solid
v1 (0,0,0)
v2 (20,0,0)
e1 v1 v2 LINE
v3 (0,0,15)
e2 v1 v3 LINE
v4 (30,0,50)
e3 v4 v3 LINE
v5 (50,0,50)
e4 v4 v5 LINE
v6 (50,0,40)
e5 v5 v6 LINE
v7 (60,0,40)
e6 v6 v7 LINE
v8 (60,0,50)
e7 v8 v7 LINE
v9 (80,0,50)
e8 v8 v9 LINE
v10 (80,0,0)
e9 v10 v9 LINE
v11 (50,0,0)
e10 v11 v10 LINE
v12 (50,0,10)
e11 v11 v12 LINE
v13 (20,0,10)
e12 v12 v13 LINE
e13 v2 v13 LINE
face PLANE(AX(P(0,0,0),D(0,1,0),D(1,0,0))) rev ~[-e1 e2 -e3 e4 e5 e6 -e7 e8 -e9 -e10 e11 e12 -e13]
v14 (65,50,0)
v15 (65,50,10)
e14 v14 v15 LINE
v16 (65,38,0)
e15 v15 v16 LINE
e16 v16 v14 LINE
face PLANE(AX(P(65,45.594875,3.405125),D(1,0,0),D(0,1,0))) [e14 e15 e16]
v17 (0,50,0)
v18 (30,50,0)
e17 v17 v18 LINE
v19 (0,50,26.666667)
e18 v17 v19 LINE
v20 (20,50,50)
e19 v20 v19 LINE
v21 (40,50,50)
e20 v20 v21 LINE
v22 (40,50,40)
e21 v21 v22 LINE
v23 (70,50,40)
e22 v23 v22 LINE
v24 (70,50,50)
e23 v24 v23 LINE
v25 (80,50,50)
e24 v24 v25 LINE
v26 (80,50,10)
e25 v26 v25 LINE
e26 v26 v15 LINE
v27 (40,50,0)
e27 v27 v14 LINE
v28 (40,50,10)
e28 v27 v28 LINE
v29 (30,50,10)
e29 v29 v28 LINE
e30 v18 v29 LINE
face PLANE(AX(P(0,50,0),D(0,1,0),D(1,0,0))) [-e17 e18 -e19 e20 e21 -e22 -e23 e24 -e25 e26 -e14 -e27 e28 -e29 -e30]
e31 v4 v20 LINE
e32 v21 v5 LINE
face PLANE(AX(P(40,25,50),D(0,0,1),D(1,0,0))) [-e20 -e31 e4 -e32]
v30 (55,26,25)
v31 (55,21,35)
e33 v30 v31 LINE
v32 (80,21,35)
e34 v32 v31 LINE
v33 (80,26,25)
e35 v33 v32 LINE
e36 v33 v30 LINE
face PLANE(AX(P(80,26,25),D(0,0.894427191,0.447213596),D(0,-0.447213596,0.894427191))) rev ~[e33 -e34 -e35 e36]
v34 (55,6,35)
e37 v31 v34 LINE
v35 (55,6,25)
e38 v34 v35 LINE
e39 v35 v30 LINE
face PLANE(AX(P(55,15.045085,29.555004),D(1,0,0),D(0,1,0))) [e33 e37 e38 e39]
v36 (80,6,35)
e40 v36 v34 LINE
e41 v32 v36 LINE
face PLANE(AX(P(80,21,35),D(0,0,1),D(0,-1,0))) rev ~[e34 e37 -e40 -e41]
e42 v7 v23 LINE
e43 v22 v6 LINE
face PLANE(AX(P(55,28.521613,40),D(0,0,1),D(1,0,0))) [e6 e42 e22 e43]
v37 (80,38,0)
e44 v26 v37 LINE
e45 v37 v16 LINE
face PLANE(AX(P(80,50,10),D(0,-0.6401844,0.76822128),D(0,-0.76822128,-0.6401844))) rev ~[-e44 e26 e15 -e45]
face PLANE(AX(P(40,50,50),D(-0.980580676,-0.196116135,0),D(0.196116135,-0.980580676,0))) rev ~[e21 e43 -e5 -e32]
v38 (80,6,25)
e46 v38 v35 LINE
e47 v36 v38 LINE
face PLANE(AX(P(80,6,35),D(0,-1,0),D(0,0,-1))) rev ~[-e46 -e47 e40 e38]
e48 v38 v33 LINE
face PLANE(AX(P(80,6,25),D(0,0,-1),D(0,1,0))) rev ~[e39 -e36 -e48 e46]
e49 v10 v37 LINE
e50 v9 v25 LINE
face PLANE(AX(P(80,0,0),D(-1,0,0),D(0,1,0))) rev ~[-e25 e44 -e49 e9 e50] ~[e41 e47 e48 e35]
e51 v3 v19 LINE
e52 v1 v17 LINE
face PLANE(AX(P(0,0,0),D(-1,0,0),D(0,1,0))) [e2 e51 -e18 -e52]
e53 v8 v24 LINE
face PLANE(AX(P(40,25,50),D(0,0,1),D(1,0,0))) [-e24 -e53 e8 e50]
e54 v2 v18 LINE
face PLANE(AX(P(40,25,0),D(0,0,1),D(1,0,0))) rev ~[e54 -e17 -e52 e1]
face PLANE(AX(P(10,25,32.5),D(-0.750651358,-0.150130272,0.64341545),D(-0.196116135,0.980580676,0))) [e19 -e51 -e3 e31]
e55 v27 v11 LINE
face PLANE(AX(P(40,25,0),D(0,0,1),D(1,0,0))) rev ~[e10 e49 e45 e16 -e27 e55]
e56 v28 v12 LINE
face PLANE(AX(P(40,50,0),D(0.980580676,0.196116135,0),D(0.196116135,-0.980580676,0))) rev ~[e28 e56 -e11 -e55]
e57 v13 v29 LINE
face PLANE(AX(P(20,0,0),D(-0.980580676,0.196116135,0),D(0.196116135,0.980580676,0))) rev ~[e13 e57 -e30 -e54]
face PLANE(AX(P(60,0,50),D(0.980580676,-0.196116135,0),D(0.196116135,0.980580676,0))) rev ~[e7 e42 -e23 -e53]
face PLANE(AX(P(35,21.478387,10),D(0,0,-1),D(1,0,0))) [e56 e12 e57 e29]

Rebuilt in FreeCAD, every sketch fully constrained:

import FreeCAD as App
import Part
import Sketcher
from FreeCAD import Vector


def add_polygon(sketch, points):
    """Adds a closed chain of lines whose ends are joined by coincident constraints."""
    first, n = sketch.GeometryCount, len(points)
    for a, b in zip(points, points[1:] + points[:1]):
        sketch.addGeometry(Part.LineSegment(App.Vector(*a, 0), App.Vector(*b, 0)), False)
    for i in range(n):
        sketch.addConstraint(Sketcher.Constraint("Coincident", first + i, 2, first + (i + 1) % n, 1))

doc = App.newDocument("Part")
body = doc.addObject("PartDesign::Body", "Body")

sketch1 = doc.addObject("Sketcher::SketchObject", "Sketch")
body.addObject(sketch1)
sketch1.AttachmentSupport = (doc.XY_Plane, [""])
sketch1.MapMode = "FlatFace"
add_polygon(sketch1, [(0, 50), (0, 0), (80, 0), (80, 50)])
sketch1.addConstraint(Sketcher.Constraint("Vertical", 0))
sketch1.addConstraint(Sketcher.Constraint("Horizontal", 1))
sketch1.addConstraint(Sketcher.Constraint("Vertical", 2))
sketch1.addConstraint(Sketcher.Constraint("Horizontal", 3))
sketch1.addConstraint(Sketcher.Constraint("Coincident", 0, 2, -1, 1))
sketch1.addConstraint(Sketcher.Constraint("DistanceX", 1, 1, 1, 2, 80.0))
sketch1.addConstraint(Sketcher.Constraint("DistanceY", 0, 2, 0, 1, 50.0))
pad1 = doc.addObject("PartDesign::Pad", "Pad")
body.addObject(pad1)
pad1.Profile = sketch1
pad1.Length = 50

sketch2 = doc.addObject("Sketcher::SketchObject", "Sketch001")
body.addObject(sketch2)
sketch2.AttachmentSupport = (doc.YZ_Plane, [""])
sketch2.MapMode = "FlatFace"
sketch2.AttachmentOffset = App.Placement(Vector(0, 0, 80), App.Rotation())
add_polygon(sketch2, [(21, 35), (6, 35), (6, 25), (26, 25)])
sketch2.addConstraint(Sketcher.Constraint("Horizontal", 0))
sketch2.addConstraint(Sketcher.Constraint("Vertical", 1))
sketch2.addConstraint(Sketcher.Constraint("Horizontal", 2))
sketch2.addConstraint(Sketcher.Constraint("DistanceX", 0, 2, 0, 1, 15.0))
sketch2.addConstraint(Sketcher.Constraint("DistanceX", 2, 1, 2, 2, 20.0))
sketch2.addConstraint(Sketcher.Constraint("DistanceY", 1, 2, 1, 1, 10.0))
sketch2.addConstraint(Sketcher.Constraint("DistanceX", -1, 1, 0, 2, 6.0))
sketch2.addConstraint(Sketcher.Constraint("DistanceY", -1, 1, 0, 2, 35.0))
pocket1 = doc.addObject("PartDesign::Pocket", "Pocket")
body.addObject(pocket1)
pocket1.Profile = sketch2
pocket1.Length = 25

sketch3 = doc.addObject("Sketcher::SketchObject", "Sketch002")
body.addObject(sketch3)
sketch3.AttachmentSupport = (doc.XY_Plane, [""])
sketch3.MapMode = "FlatFace"
add_polygon(sketch3, [(50, 0), (20, 0), (30, 50), (40, 50)])
sketch3.addConstraint(Sketcher.Constraint("Horizontal", 0))
sketch3.addConstraint(Sketcher.Constraint("Horizontal", 2))
sketch3.addConstraint(Sketcher.Constraint("PointOnObject", 0, 2, -1))
sketch3.addConstraint(Sketcher.Constraint("Equal", 1, 3))
sketch3.addConstraint(Sketcher.Constraint("DistanceX", 0, 2, 0, 1, 30.0))
sketch3.addConstraint(Sketcher.Constraint("DistanceX", 2, 1, 2, 2, 10.0))
sketch3.addConstraint(Sketcher.Constraint("DistanceX", -1, 1, 0, 2, 20.0))
sketch3.addConstraint(Sketcher.Constraint("DistanceY", -1, 1, 1, 2, 50.0))
pocket2 = doc.addObject("PartDesign::Pocket", "Pocket001")
body.addObject(pocket2)
pocket2.Profile = sketch3
pocket2.Length = 10
pocket2.Reversed = True

sketch4 = doc.addObject("Sketcher::SketchObject", "Sketch003")
body.addObject(sketch4)
sketch4.AttachmentSupport = (doc.XY_Plane, [""])
sketch4.MapMode = "FlatFace"
sketch4.AttachmentOffset = App.Placement(Vector(0, 0, 50), App.Rotation())
add_polygon(sketch4, [(70, 50), (40, 50), (50, 0), (60, 0)])
sketch4.addConstraint(Sketcher.Constraint("Horizontal", 0))
sketch4.addConstraint(Sketcher.Constraint("Horizontal", 2))
sketch4.addConstraint(Sketcher.Constraint("PointOnObject", 1, 2, -1))
sketch4.addConstraint(Sketcher.Constraint("Equal", 1, 3))
sketch4.addConstraint(Sketcher.Constraint("DistanceX", 0, 2, 0, 1, 30.0))
sketch4.addConstraint(Sketcher.Constraint("DistanceX", 2, 1, 2, 2, 10.0))
sketch4.addConstraint(Sketcher.Constraint("DistanceX", -1, 1, 0, 2, 40.0))
sketch4.addConstraint(Sketcher.Constraint("DistanceY", -1, 1, 0, 2, 50.0))
pocket3 = doc.addObject("PartDesign::Pocket", "Pocket002")
body.addObject(pocket3)
pocket3.Profile = sketch4
pocket3.Length = 10

sketch5 = doc.addObject("Sketcher::SketchObject", "Sketch004")
body.addObject(sketch5)
sketch5.AttachmentSupport = (doc.YZ_Plane, [""])
sketch5.MapMode = "FlatFace"
sketch5.AttachmentOffset = App.Placement(Vector(0, 0, 80), App.Rotation())
add_polygon(sketch5, [(50, 10), (38, 0), (50, 0)])
sketch5.addConstraint(Sketcher.Constraint("Horizontal", 1))
sketch5.addConstraint(Sketcher.Constraint("Vertical", 2))
sketch5.addConstraint(Sketcher.Constraint("PointOnObject", 0, 2, -1))
sketch5.addConstraint(Sketcher.Constraint("DistanceX", 1, 1, 1, 2, 12.0))
sketch5.addConstraint(Sketcher.Constraint("DistanceY", 2, 1, 2, 2, 10.0))
sketch5.addConstraint(Sketcher.Constraint("DistanceX", -1, 1, 0, 2, 38.0))
pocket4 = doc.addObject("PartDesign::Pocket", "Pocket003")
body.addObject(pocket4)
pocket4.Profile = sketch5
pocket4.Length = 15

sketch6 = doc.addObject("Sketcher::SketchObject", "Sketch005")
body.addObject(sketch6)
sketch6.AttachmentSupport = (doc.XY_Plane, [""])
sketch6.MapMode = "FlatFace"
sketch6.AttachmentOffset = App.Placement(Vector(0, 0, 50), App.Rotation())
add_polygon(sketch6, [(0, 0), (30, 0), (20, 50), (0, 50)])
sketch6.addConstraint(Sketcher.Constraint("Horizontal", 0))
sketch6.addConstraint(Sketcher.Constraint("Horizontal", 2))
sketch6.addConstraint(Sketcher.Constraint("Vertical", 3))
sketch6.addConstraint(Sketcher.Constraint("Coincident", 3, 2, -1, 1))
sketch6.addConstraint(Sketcher.Constraint("DistanceX", 0, 1, 0, 2, 30.0))
sketch6.addConstraint(Sketcher.Constraint("DistanceX", 2, 2, 2, 1, 20.0))
sketch6.addConstraint(Sketcher.Constraint("DistanceY", 3, 2, 3, 1, 50.0))

sketch7 = doc.addObject("Sketcher::SketchObject", "Sketch006")
body.addObject(sketch7)
sketch7.Placement = App.Placement(Vector(-7.411765, 0, 6.352941), App.Rotation(Vector(-0.650791373, 0, -0.759256602), Vector(0, 0.999999999, 0), Vector(0.759256602, 0, -0.650791373), "ZXY"))
sketch7.addGeometry(Part.LineSegment(Vector(-57, 0, 0), Vector(-11, 0, 0)), False)
sketch7.addConstraint(Sketcher.Constraint("Horizontal", 0))
sketch7.addConstraint(Sketcher.Constraint("PointOnObject", 0, 1, -1))
sketch7.addConstraint(Sketcher.Constraint("DistanceX", 0, 1, 0, 2, 46.097722))
sketch7.addConstraint(Sketcher.Constraint("DistanceX", 0, 1, -1, 1, 57.486571))
doc.recompute()

subtractivepipe = doc.addObject("PartDesign::SubtractivePipe", "SubtractivePipe")
body.addObject(subtractivepipe)
subtractivepipe.Profile = sketch6
subtractivepipe.Spine = (sketch7, ["Edge1"])

doc.recompute()
